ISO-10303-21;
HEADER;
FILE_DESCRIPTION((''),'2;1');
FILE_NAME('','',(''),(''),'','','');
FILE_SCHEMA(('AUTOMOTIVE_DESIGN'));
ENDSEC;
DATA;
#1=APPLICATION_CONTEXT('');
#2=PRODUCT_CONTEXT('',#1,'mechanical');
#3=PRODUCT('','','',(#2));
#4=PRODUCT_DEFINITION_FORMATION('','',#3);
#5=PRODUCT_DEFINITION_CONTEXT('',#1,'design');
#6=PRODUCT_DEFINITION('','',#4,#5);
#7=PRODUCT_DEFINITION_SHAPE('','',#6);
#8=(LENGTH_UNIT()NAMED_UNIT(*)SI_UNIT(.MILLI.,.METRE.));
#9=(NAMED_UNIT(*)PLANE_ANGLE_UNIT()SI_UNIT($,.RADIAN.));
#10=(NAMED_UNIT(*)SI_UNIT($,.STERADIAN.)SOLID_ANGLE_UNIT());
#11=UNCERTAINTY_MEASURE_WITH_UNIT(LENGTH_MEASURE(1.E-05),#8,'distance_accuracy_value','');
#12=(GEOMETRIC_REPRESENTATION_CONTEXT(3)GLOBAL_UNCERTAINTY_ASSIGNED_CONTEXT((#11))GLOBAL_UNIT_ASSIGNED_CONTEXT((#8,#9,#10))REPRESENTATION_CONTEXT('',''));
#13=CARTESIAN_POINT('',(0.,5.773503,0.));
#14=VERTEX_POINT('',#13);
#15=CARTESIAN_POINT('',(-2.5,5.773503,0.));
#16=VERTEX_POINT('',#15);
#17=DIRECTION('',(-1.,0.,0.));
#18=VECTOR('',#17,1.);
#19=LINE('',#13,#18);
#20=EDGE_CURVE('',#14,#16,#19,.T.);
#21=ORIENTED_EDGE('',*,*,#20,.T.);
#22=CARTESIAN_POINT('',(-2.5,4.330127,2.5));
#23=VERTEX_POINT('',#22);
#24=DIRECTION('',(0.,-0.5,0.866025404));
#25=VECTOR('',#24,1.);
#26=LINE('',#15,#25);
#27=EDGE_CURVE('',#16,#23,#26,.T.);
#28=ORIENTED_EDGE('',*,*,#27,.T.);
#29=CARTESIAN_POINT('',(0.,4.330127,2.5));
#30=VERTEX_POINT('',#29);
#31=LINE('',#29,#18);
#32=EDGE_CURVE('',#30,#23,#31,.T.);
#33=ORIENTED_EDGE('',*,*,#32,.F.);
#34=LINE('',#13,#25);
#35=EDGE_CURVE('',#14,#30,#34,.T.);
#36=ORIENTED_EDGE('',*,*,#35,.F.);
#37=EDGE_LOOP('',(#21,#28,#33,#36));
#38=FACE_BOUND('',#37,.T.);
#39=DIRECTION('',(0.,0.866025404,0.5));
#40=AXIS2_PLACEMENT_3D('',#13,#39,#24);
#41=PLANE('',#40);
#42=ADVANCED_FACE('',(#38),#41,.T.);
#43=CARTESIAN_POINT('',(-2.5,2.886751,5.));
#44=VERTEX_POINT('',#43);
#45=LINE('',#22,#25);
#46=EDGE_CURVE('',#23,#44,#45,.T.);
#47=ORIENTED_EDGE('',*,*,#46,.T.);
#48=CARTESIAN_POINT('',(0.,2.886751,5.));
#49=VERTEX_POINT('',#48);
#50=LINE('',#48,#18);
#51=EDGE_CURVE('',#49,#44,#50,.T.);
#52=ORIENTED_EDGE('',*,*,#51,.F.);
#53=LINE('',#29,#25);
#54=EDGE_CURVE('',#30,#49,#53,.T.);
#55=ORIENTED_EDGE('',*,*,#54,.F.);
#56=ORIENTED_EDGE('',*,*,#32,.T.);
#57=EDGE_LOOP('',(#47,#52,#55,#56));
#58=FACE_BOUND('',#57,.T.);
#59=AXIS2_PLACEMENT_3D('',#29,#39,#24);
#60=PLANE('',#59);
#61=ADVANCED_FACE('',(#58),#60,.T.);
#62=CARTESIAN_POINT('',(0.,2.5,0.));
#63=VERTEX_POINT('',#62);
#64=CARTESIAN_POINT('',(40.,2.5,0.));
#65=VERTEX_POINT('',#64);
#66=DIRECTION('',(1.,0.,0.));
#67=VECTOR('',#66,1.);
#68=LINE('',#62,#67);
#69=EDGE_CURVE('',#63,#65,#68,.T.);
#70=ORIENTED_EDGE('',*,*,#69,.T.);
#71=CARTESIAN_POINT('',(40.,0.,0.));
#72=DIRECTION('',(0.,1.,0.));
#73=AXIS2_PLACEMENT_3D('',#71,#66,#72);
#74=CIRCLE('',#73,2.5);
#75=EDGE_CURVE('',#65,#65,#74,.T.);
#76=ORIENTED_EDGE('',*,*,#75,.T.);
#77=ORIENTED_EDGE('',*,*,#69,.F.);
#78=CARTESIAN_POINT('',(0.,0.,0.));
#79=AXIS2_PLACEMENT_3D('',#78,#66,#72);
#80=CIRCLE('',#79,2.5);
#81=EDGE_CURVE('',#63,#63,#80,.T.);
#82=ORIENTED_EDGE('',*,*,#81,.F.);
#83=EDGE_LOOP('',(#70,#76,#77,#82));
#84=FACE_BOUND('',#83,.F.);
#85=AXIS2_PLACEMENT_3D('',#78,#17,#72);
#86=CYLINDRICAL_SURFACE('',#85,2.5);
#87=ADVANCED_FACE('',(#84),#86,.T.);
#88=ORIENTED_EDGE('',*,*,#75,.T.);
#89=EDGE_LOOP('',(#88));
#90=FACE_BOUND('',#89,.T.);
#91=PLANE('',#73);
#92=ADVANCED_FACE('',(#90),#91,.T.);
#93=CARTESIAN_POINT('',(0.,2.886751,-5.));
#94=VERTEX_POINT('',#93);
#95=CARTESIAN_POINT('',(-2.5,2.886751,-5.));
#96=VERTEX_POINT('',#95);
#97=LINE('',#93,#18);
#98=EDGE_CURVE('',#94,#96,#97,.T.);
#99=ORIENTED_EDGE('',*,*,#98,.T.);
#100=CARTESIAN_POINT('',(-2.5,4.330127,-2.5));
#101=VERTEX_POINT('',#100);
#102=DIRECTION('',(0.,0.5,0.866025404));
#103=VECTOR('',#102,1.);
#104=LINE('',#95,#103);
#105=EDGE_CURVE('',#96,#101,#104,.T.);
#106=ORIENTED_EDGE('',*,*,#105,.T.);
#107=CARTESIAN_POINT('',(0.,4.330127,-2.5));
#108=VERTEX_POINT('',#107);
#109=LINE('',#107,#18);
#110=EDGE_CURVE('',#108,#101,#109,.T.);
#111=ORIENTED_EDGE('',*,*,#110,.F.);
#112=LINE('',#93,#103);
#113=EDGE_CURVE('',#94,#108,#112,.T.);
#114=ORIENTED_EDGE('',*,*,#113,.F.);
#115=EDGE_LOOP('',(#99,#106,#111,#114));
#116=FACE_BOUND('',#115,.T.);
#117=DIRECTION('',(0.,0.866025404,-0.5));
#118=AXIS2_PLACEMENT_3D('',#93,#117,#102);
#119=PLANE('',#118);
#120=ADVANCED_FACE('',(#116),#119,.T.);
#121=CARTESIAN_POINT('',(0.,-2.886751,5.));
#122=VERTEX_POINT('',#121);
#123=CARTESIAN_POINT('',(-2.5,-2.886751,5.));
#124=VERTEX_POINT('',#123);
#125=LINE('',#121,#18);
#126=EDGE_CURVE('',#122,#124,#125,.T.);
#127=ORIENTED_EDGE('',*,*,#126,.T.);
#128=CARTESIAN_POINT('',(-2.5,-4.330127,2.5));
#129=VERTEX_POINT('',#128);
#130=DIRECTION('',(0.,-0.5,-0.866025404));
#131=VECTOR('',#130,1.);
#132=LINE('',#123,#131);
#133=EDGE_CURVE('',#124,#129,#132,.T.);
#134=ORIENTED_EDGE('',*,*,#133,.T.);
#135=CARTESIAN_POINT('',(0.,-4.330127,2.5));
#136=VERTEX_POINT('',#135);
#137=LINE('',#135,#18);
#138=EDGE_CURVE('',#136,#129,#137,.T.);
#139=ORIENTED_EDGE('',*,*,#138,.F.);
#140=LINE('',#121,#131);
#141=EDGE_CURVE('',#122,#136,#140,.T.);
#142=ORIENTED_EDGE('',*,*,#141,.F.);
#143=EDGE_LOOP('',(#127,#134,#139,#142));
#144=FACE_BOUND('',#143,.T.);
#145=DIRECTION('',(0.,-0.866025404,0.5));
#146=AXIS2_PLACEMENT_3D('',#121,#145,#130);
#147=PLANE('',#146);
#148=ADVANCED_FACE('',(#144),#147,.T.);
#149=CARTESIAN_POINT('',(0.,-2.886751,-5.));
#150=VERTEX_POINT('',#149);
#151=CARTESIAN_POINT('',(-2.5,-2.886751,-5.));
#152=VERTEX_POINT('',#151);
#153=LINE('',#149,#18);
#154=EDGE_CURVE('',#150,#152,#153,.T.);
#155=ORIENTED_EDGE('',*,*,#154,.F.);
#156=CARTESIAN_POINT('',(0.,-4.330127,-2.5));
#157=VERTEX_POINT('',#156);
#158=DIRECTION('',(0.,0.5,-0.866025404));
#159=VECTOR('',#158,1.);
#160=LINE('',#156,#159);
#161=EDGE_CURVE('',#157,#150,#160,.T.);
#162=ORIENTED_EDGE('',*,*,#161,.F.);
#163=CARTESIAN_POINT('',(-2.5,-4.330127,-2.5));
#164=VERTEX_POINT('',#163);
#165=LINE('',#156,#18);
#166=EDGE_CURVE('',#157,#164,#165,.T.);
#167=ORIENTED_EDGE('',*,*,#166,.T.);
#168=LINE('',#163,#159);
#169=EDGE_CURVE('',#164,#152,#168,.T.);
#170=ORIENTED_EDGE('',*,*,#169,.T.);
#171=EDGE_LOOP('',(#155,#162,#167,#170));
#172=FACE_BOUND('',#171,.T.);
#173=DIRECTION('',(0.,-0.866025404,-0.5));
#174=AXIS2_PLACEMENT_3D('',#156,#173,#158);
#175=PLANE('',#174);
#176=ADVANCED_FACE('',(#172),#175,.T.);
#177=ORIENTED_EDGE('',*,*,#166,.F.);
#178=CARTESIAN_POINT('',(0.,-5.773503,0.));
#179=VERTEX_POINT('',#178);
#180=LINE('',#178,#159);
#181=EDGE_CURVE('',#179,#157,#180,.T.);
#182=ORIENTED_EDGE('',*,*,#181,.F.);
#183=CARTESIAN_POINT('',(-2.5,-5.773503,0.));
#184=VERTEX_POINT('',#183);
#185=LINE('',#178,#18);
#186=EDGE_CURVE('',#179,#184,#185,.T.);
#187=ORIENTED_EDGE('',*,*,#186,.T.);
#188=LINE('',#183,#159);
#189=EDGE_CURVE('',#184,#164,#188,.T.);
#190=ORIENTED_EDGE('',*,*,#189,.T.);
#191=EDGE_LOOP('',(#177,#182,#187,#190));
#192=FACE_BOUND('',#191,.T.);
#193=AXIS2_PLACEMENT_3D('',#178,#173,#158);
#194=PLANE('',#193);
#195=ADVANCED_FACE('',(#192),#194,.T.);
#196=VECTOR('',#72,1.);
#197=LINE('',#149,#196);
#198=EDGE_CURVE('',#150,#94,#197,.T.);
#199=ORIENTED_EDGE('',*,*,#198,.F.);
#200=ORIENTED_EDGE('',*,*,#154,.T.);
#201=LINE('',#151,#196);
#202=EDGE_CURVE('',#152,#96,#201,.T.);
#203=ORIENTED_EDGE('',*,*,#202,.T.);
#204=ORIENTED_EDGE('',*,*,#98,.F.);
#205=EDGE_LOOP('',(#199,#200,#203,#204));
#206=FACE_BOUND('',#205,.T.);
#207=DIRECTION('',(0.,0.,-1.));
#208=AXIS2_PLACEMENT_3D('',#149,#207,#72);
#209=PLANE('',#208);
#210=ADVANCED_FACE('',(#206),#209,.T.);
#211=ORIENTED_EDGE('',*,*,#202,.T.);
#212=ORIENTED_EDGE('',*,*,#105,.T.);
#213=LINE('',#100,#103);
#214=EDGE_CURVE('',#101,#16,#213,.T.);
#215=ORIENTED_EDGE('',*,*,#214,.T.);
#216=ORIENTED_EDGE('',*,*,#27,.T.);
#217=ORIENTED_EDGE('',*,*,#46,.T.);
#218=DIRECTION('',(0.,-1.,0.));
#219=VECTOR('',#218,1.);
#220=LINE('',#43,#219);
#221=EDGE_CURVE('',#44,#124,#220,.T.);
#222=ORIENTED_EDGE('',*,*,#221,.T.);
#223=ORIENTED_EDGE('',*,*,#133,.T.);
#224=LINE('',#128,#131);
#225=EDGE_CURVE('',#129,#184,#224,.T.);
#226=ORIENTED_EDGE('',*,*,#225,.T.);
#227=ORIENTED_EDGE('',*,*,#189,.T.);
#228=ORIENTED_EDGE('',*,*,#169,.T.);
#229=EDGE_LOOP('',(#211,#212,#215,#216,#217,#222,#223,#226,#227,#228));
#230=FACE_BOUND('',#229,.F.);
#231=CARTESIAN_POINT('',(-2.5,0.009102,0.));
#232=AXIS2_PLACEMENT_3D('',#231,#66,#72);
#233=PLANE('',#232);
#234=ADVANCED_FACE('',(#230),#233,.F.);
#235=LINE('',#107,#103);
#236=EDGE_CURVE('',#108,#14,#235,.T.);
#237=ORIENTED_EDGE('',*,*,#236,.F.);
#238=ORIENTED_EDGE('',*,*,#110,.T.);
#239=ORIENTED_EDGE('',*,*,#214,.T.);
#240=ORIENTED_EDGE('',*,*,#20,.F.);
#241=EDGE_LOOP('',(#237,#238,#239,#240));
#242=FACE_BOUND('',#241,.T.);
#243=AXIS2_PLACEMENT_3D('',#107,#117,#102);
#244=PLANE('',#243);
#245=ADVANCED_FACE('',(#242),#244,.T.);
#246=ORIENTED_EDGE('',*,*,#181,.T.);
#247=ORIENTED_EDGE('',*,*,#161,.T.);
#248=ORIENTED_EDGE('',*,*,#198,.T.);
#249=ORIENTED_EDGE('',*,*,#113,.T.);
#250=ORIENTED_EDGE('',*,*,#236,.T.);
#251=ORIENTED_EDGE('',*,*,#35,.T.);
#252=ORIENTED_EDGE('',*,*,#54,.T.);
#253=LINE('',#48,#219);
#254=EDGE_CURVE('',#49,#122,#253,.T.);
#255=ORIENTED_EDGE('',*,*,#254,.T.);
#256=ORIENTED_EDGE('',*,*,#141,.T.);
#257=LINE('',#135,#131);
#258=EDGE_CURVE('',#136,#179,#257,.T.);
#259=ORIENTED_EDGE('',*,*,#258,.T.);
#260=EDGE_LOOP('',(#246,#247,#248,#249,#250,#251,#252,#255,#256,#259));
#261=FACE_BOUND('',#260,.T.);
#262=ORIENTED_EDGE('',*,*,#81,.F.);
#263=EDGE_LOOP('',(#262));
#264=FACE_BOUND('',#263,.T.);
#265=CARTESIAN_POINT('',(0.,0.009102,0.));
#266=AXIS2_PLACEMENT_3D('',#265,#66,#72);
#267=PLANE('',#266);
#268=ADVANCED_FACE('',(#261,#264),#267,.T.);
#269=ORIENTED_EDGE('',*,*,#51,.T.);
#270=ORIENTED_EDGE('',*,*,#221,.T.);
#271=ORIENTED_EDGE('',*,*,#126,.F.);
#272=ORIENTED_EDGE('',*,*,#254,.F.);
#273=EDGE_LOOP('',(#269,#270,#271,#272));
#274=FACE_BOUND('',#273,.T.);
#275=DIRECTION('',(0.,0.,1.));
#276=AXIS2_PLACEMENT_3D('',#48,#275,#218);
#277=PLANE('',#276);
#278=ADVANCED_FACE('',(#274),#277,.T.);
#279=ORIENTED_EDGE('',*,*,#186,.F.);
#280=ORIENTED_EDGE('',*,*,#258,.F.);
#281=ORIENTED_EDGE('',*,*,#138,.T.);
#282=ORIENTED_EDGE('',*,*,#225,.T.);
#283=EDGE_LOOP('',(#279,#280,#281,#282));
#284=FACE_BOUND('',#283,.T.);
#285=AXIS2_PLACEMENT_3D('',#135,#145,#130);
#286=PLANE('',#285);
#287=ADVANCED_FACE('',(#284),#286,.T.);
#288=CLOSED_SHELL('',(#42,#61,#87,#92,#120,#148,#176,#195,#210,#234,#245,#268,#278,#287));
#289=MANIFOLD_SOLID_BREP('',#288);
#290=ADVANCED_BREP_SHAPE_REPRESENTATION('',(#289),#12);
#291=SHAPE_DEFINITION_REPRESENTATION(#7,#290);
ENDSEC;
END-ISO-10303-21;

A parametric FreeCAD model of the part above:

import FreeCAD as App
import Part
import Sketcher
Q = App.Units.Quantity

doc = App.newDocument("Part")
params = doc.addObject("Spreadsheet::Sheet", "Params")
for row, (alias, value) in enumerate([
    ("sketch1_diameter", "5 mm"),
    ("pad1_length", "40 mm"),
    ("pad2_length", "2.5 mm"),
], start=1):
    params.set(f"A{row}", alias)
    params.set(f"B{row}", "=" + value)
    params.setAlias(f"B{row}", alias)

body = doc.addObject("PartDesign::Body", "Body")

# Sketch on YZ plane
sketch1 = body.newObject("Sketcher::SketchObject", "Sketch")
sketch1.AttachmentSupport = (doc.getObject("YZ_Plane"), [""])
sketch1.MapMode = "FlatFace"
sketch1.addGeometry(Part.Circle(App.Vector(0, 0, 0), App.Vector(0, 0, 1), 2.5), False)
sketch1.addConstraint([
    Sketcher.Constraint("Coincident", 0, 3, -1, 1),
    Sketcher.Constraint("Diameter", 0, 5.0),
])
sketch1.setExpression("Constraints[1]", "Params.sketch1_diameter")
pad1 = body.newObject("PartDesign::Pad", "Pad")
pad1.Profile = sketch1
pad1.setExpression("Length", "Params.pad1_length")

# Sketch on YZ plane
sketch2 = body.newObject("Sketcher::SketchObject", "Sketch001")
sketch2.AttachmentSupport = (doc.getObject("YZ_Plane"), [""])
sketch2.MapMode = "FlatFace"
sketch2.addGeometry([
    Part.LineSegment(App.Vector(-4.3, -2.5, 0), App.Vector(-2.9, -5, 0)),  # 0
    Part.LineSegment(App.Vector(-2.9, -5, 0), App.Vector(2.9, -5, 0)),  # 1
    Part.LineSegment(App.Vector(2.9, -5, 0), App.Vector(4.3, -2.5, 0)),  # 2
    Part.LineSegment(App.Vector(4.3, -2.5, 0), App.Vector(5.8, 0, 0)),  # 3
    Part.LineSegment(App.Vector(5.8, 0, 0), App.Vector(4.3, 2.5, 0)),  # 4
    Part.LineSegment(App.Vector(4.3, 2.5, 0), App.Vector(2.9, 5, 0)),  # 5
    Part.LineSegment(App.Vector(2.9, 5, 0), App.Vector(-2.9, 5, 0)),  # 6
    Part.LineSegment(App.Vector(-2.9, 5, 0), App.Vector(-4.3, 2.5, 0)),  # 7
    Part.LineSegment(App.Vector(-4.3, 2.5, 0), App.Vector(-5.8, 0, 0)),  # 8
    Part.LineSegment(App.Vector(-5.8, 0, 0), App.Vector(-4.3, -2.5, 0)),  # 9
], False)
sketch2.addConstraint([
    Sketcher.Constraint("Coincident", 0, 2, 1, 1),
    Sketcher.Constraint("Coincident", 1, 2, 2, 1),
    Sketcher.Constraint("Coincident", 2, 2, 3, 1),
    Sketcher.Constraint("Coincident", 3, 2, 4, 1),
    Sketcher.Constraint("Coincident", 4, 2, 5, 1),
    Sketcher.Constraint("Coincident", 5, 2, 6, 1),
    Sketcher.Constraint("Coincident", 6, 2, 7, 1),
    Sketcher.Constraint("Coincident", 7, 2, 8, 1),
    Sketcher.Constraint("Coincident", 8, 2, 9, 1),
    Sketcher.Constraint("Coincident", 9, 2, 0, 1),
    Sketcher.Constraint("Horizontal", 1),
    Sketcher.Constraint("Horizontal", 6),
    Sketcher.Constraint("Symmetric", 0, 2, 5, 2, -1, 1),
    Sketcher.Constraint("Symmetric", 2, 2, 7, 2, -1, 1),
    Sketcher.Constraint("Symmetric", 3, 2, 8, 2, -1, 1),
    Sketcher.Constraint("Symmetric", 4, 2, 9, 2, -1, 1),
    Sketcher.Constraint("Symmetric", 4, 2, 7, 2, -2),
    Sketcher.Constraint("PointOnObject", 3, 2, -1),
    Sketcher.Constraint("Parallel", 2, 3),
    Sketcher.Constraint("Parallel", 0, 4),
    Sketcher.Constraint("Parallel", 3, 7),
    Sketcher.Constraint("Equal", 2, 3),
    Sketcher.Constraint("Angle", 0, Q("-60 deg")),
    Sketcher.Constraint("DistanceY", 0, 2, -1, 1, 5.0),
    Sketcher.Constraint("DistanceX", 1, 1, 1, 2, 5.773503),
])
pad2 = body.newObject("PartDesign::Pad", "Pad001")
pad2.Profile = sketch2
pad2.setExpression("Length", "Params.pad2_length")
pad2.Reversed = True

doc.recompute()
